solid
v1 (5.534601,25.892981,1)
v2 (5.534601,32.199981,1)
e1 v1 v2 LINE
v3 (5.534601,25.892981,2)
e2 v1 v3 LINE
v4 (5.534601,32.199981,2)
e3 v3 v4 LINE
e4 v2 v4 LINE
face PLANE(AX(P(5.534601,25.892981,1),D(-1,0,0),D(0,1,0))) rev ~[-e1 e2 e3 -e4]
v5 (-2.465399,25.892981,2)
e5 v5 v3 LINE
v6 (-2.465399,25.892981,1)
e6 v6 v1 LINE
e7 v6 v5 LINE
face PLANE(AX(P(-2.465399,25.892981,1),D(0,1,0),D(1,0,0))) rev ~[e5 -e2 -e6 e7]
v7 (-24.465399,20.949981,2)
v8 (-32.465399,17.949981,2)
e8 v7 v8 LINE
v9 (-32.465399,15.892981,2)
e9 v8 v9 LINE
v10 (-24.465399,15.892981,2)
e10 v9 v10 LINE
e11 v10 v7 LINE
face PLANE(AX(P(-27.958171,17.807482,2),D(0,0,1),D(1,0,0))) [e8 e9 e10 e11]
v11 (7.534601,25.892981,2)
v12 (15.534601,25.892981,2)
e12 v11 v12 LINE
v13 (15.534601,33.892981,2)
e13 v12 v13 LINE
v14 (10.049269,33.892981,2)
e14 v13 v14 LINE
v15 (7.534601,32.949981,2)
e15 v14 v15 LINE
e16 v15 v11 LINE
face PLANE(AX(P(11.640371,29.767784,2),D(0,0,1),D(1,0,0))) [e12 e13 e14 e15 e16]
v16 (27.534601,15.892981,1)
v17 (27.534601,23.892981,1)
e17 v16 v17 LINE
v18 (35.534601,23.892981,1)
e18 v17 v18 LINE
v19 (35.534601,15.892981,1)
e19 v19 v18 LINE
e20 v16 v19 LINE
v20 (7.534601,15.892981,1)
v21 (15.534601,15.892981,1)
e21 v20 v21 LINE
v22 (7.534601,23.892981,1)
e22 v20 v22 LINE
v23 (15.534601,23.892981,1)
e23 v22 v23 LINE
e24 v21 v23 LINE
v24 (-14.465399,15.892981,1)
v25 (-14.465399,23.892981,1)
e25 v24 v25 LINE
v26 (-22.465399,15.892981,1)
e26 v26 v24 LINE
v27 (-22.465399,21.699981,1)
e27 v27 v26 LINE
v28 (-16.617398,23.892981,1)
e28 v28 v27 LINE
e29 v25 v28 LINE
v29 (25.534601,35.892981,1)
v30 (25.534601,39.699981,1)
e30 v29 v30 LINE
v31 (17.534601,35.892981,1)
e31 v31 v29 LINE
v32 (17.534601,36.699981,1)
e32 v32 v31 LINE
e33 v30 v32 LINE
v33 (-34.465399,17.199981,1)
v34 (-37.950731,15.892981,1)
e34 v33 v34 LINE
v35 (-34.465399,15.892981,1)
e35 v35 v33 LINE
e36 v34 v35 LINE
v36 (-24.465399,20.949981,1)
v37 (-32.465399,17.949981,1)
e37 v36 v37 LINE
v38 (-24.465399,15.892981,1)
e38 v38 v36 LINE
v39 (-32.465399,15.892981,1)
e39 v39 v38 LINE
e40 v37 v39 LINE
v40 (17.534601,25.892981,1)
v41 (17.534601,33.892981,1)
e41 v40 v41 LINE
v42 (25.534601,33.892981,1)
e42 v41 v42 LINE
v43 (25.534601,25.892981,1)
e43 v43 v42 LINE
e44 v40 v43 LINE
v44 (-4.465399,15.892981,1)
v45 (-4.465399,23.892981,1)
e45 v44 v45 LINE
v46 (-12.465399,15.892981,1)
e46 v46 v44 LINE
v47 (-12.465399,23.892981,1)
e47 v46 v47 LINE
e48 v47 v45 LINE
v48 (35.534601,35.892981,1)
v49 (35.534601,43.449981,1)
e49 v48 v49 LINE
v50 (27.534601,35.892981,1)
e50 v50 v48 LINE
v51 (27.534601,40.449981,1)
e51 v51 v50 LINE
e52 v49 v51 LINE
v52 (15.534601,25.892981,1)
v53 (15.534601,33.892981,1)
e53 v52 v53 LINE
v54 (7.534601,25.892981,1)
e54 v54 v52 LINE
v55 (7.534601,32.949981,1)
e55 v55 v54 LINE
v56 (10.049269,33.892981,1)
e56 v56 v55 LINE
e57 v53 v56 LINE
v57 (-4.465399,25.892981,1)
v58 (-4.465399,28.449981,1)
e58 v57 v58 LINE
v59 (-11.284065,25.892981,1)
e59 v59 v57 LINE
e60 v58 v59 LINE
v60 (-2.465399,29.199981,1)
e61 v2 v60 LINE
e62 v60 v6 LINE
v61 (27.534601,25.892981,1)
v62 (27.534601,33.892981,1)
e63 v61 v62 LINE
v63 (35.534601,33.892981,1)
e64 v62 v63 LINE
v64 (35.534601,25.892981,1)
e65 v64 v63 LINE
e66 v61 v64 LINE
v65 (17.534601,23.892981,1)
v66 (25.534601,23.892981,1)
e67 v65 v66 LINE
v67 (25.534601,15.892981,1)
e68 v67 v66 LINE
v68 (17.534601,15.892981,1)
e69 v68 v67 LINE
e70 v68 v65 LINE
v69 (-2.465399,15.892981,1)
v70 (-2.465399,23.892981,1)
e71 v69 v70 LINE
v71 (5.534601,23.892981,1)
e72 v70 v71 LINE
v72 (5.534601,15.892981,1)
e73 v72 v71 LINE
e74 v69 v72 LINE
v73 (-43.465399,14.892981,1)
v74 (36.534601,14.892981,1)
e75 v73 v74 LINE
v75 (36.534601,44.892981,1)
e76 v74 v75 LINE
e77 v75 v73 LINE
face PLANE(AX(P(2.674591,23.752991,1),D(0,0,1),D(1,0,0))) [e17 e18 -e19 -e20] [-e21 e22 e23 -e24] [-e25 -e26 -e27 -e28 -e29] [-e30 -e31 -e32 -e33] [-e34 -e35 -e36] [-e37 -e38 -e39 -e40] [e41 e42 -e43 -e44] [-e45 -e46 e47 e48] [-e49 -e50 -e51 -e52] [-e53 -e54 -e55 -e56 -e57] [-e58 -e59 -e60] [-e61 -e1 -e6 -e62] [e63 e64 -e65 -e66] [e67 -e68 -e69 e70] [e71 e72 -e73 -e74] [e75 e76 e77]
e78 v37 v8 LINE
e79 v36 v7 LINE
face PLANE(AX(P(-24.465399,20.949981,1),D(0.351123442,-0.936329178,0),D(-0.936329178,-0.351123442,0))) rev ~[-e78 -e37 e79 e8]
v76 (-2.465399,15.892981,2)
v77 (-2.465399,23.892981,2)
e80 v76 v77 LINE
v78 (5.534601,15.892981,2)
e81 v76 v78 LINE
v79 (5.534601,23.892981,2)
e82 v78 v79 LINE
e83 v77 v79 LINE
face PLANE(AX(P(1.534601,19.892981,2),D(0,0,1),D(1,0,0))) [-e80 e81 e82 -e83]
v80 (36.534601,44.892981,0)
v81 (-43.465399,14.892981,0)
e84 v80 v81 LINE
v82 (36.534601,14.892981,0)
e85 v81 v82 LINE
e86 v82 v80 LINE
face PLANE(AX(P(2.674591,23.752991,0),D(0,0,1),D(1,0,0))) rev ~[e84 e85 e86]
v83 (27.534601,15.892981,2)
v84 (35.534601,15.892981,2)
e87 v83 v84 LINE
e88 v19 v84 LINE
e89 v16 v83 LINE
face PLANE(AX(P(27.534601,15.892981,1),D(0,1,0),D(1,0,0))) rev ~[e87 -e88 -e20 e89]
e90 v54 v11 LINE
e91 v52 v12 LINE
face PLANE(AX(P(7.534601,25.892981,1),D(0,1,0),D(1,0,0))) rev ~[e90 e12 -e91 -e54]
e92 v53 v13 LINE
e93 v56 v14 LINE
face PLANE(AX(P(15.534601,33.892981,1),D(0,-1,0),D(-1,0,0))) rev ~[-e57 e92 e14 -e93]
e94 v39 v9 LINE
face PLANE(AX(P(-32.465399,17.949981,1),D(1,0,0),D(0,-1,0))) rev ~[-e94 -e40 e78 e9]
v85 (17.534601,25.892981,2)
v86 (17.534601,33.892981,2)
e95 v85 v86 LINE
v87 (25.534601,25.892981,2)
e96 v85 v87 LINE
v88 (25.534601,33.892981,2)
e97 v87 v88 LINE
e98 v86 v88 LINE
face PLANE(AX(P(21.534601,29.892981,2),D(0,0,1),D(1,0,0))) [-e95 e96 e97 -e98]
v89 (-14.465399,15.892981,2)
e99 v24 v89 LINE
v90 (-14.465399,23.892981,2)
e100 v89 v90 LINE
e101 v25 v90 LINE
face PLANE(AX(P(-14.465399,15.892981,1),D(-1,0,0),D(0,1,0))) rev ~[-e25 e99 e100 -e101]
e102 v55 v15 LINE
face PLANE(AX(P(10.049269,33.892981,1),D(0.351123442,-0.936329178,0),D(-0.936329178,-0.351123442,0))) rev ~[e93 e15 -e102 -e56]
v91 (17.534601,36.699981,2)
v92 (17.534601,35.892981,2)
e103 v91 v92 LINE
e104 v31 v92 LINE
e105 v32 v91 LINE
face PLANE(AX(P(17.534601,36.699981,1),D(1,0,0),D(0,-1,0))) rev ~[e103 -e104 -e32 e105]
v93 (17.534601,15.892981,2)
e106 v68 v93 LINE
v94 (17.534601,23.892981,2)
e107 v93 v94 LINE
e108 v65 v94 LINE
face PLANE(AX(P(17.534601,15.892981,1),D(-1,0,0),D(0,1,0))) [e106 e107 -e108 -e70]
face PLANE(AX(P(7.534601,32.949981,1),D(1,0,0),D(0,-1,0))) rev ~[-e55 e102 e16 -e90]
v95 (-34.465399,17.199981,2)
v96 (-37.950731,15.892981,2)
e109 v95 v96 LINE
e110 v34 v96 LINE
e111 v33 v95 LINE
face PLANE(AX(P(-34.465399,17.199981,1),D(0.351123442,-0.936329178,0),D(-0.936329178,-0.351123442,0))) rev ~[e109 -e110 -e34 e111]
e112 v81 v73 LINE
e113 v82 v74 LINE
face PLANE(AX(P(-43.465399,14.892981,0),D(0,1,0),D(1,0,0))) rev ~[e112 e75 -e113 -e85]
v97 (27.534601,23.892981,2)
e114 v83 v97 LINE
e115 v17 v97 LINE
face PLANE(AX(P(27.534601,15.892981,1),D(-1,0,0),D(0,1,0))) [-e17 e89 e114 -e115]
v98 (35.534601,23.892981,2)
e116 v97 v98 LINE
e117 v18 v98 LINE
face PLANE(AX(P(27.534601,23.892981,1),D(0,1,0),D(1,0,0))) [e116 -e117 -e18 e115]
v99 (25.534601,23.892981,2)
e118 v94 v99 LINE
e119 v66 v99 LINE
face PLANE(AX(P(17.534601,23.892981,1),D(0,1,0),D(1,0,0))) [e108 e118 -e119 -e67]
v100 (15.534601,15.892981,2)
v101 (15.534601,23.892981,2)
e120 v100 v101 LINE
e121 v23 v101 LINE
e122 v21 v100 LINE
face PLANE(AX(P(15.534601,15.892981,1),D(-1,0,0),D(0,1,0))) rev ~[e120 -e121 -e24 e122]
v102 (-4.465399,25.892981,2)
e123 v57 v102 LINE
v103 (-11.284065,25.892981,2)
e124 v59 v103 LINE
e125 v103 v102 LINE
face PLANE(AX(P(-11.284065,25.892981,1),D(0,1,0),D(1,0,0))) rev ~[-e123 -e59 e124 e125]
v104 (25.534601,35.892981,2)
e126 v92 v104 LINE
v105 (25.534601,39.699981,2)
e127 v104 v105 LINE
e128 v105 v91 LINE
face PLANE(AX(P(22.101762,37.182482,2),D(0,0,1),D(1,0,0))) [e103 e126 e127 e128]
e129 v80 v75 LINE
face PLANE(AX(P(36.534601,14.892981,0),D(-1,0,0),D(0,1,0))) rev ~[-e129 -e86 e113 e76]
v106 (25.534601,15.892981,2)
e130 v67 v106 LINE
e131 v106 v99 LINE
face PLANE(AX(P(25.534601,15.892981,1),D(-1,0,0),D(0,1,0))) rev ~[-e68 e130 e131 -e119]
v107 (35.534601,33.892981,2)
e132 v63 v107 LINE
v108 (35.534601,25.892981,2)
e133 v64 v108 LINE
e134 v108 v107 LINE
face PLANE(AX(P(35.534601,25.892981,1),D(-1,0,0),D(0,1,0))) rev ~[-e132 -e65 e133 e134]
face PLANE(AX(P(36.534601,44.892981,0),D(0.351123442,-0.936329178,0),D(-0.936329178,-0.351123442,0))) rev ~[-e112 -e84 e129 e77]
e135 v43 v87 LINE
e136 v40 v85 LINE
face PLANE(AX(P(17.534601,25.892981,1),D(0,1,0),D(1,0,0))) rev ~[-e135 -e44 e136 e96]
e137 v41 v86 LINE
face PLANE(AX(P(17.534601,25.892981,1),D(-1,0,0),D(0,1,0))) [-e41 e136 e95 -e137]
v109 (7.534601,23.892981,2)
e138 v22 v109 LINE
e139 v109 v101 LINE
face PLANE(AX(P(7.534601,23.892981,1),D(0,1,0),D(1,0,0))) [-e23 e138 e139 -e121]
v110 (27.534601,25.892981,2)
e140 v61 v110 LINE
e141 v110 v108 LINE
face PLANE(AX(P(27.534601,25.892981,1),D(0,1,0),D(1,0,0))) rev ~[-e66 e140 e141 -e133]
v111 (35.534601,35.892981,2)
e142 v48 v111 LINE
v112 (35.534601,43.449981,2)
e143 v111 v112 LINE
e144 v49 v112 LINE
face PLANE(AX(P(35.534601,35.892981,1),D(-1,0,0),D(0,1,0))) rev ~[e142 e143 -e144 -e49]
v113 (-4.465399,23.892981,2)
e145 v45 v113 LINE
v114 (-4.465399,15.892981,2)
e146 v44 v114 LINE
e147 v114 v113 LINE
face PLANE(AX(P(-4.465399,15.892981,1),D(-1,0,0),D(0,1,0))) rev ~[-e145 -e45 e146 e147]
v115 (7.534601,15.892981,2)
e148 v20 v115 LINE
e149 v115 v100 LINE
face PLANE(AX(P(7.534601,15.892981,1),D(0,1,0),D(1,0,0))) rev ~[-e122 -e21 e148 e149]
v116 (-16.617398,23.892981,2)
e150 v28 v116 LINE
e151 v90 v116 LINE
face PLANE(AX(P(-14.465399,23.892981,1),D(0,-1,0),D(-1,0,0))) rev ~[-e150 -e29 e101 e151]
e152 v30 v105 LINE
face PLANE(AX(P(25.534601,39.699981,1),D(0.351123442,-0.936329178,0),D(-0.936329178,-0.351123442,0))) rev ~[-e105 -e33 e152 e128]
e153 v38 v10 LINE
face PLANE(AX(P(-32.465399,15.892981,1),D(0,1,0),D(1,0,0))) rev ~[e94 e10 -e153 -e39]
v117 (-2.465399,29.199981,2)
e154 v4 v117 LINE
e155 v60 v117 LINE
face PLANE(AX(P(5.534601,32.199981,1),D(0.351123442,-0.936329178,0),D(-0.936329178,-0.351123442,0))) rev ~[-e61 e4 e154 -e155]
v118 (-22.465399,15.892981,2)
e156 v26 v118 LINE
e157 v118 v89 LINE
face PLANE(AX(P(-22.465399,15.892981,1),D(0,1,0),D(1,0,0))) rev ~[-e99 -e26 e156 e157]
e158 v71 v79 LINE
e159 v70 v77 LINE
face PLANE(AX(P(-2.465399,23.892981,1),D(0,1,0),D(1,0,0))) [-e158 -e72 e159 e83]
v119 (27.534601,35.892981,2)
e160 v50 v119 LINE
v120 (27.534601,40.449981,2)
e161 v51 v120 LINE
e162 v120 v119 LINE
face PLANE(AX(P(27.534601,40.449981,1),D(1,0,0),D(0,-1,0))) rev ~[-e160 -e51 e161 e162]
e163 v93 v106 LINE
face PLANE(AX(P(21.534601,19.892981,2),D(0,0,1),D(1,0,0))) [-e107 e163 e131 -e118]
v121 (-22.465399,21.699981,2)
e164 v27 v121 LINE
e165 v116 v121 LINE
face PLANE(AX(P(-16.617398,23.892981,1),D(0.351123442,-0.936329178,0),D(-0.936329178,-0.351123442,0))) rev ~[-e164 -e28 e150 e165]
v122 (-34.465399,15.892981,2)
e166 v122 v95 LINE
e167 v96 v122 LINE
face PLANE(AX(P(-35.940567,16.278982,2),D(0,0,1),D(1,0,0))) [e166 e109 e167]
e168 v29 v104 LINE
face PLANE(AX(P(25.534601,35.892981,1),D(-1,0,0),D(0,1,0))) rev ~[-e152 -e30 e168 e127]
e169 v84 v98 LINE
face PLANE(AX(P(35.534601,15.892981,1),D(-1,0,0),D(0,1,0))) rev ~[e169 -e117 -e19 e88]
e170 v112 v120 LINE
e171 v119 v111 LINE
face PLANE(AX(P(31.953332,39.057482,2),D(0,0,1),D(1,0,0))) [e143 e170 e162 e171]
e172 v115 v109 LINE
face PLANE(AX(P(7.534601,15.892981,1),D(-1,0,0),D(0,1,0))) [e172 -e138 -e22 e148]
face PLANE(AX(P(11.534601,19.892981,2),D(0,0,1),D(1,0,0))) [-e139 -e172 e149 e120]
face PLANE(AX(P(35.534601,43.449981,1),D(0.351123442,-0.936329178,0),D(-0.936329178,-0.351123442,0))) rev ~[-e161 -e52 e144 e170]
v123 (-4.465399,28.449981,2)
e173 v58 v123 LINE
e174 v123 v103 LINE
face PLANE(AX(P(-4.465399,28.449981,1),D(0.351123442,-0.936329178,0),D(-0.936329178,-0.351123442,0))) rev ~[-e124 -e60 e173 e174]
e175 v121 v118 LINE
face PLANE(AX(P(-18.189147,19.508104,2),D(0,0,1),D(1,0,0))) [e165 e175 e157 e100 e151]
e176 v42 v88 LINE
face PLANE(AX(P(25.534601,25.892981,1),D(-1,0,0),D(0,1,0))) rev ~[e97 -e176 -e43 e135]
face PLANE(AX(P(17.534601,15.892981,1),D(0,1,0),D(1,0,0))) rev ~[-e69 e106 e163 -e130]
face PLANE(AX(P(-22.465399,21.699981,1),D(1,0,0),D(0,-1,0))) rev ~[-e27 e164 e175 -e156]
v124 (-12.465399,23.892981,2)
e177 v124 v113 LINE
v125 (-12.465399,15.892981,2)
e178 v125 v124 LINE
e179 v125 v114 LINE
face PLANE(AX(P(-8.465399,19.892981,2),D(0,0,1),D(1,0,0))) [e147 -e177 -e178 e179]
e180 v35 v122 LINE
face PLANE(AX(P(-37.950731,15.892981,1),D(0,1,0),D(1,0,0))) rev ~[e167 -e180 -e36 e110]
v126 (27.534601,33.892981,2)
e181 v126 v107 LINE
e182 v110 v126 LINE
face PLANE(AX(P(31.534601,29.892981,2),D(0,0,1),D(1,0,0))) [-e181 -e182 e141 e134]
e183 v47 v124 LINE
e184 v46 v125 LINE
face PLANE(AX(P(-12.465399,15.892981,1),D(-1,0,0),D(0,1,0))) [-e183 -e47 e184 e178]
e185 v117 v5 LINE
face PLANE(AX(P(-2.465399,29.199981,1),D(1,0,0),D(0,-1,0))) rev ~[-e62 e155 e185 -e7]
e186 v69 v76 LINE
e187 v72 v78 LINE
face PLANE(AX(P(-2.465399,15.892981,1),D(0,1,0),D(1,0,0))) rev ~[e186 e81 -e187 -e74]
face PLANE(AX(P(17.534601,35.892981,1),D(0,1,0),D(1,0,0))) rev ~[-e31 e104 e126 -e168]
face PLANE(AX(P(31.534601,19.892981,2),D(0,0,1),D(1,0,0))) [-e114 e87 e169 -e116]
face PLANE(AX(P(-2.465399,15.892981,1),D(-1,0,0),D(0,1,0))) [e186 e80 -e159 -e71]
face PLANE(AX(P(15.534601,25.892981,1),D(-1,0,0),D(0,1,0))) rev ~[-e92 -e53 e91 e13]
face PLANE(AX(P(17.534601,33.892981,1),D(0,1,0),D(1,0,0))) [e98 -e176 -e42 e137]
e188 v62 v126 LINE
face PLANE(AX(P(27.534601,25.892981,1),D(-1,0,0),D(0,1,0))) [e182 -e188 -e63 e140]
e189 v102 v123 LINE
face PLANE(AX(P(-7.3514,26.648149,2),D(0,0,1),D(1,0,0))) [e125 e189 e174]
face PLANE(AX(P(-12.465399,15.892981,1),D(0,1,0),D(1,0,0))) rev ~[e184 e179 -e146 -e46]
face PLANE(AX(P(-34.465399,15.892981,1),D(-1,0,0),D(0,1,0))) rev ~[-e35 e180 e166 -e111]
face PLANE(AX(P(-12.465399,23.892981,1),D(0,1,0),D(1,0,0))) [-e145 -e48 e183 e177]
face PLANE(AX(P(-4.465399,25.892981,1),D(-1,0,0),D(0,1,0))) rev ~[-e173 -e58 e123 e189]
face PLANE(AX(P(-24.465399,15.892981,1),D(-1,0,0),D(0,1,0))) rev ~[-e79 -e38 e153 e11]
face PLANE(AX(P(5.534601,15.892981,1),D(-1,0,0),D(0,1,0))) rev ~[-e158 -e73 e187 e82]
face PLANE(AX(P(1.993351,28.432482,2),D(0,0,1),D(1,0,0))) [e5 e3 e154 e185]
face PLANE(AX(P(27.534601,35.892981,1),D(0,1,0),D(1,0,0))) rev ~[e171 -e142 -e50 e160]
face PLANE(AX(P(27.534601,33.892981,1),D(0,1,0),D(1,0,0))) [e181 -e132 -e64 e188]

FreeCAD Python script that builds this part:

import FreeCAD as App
import Part
import Sketcher
Q = App.Units.Quantity


def add_polygon(sketch, points):
    """Adds a closed chain of lines whose ends are joined by coincident constraints."""
    first, n = sketch.GeometryCount, len(points)
    for a, b in zip(points, points[1:] + points[:1]):
        sketch.addGeometry(Part.LineSegment(App.Vector(*a, 0), App.Vector(*b, 0)), False)
    for i in range(n):
        sketch.addConstraint(Sketcher.Constraint("Coincident", first + i, 2, first + (i + 1) % n, 1))

doc = App.newDocument("Part")
body = doc.addObject("PartDesign::Body", "Body")

sketch1 = doc.addObject("Sketcher::SketchObject", "Sketch")
body.addObject(sketch1)
sketch1.AttachmentSupport = (doc.XY_Plane, [""])
sketch1.MapMode = "FlatFace"
add_polygon(sketch1, [(37, 45), (-43, 15), (37, 15)])
sketch1.addConstraint([
    Sketcher.Constraint("Horizontal", 1),
    Sketcher.Constraint("Vertical", 2),
    Sketcher.Constraint("DistanceX", 1, 1, 1, 2, Q("80 mm")),
    Sketcher.Constraint("DistanceY", 2, 1, 2, 2, Q("30 mm")),
    Sketcher.Constraint("DistanceX", 0, 2, -1, 1, Q("43.465399 mm")),
    Sketcher.Constraint("DistanceY", -1, 1, 0, 2, Q("14.892981 mm")),
])
pad1 = doc.addObject("PartDesign::Pad", "Pad")
body.addObject(pad1)
pad1.Profile = sketch1
pad1.Length = 1

sketch2 = doc.addObject("Sketcher::SketchObject", "Sketch001")
body.addObject(sketch2)
sketch2.AttachmentSupport = (doc.XY_Plane, [""])
sketch2.MapMode = "FlatFace"
sketch2.AttachmentOffset = App.Placement(App.Vector(0, 0, 1), App.Rotation())
add_polygon(sketch2, [(-34.5, 15.9), (-34.5, 17.2), (-38, 15.9)])
add_polygon(sketch2, [(-24.5, 15.9), (-24.5, 20.9), (-32.5, 17.9), (-32.5, 15.9)])
add_polygon(sketch2, [(-14.5, 15.9), (-14.5, 23.9), (-16.6, 23.9), (-22.5, 21.7), (-22.5, 15.9)])
add_polygon(sketch2, [(-12.5, 23.9), (-12.5, 15.9), (-4.5, 15.9), (-4.5, 23.9)])
add_polygon(sketch2, [(-4.5, 25.9), (-4.5, 28.4), (-11.3, 25.9)])
add_polygon(sketch2, [(5.5, 25.9), (5.5, 32.2), (-2.5, 29.2), (-2.5, 25.9)])
add_polygon(sketch2, [(-2.5, 23.9), (-2.5, 15.9), (5.5, 15.9), (5.5, 23.9)])
add_polygon(sketch2, [(15.5, 25.9), (15.5, 33.9), (10, 33.9), (7.5, 32.9), (7.5, 25.9)])
add_polygon(sketch2, [(7.5, 23.9), (7.5, 15.9), (15.5, 15.9), (15.5, 23.9)])
add_polygon(sketch2, [(17.5, 33.9), (17.5, 25.9), (25.5, 25.9), (25.5, 33.9)])
add_polygon(sketch2, [(25.5, 35.9), (25.5, 39.7), (17.5, 36.7), (17.5, 35.9)])
add_polygon(sketch2, [(17.5, 23.9), (17.5, 15.9), (25.5, 15.9), (25.5, 23.9)])
add_polygon(sketch2, [(35.5, 35.9), (35.5, 43.4), (27.5, 40.4), (27.5, 35.9)])
add_polygon(sketch2, [(27.5, 33.9), (27.5, 25.9), (35.5, 25.9), (35.5, 33.9)])
add_polygon(sketch2, [(27.5, 23.9), (27.5, 15.9), (35.5, 15.9), (35.5, 23.9)])
sketch2.addConstraint([
    Sketcher.Constraint("Vertical", 0),
    Sketcher.Constraint("Horizontal", 2),
    Sketcher.Constraint("Vertical", 3),
    Sketcher.Constraint("Vertical", 5),
    Sketcher.Constraint("Horizontal", 6),
    Sketcher.Constraint("Vertical", 7),
    Sketcher.Constraint("Horizontal", 8),
    Sketcher.Constraint("Vertical", 10),
    Sketcher.Constraint("Horizontal", 11),
    Sketcher.Constraint("Vertical", 12),
    Sketcher.Constraint("Horizontal", 13),
    Sketcher.Constraint("Vertical", 14),
    Sketcher.Constraint("Horizontal", 15),
    Sketcher.Constraint("Vertical", 16),
    Sketcher.Constraint("Horizontal", 18),
    Sketcher.Constraint("Vertical", 19),
    Sketcher.Constraint("Vertical", 21),
    Sketcher.Constraint("Horizontal", 22),
    Sketcher.Constraint("Vertical", 23),
    Sketcher.Constraint("Horizontal", 24),
    Sketcher.Constraint("Vertical", 25),
    Sketcher.Constraint("Horizontal", 26),
    Sketcher.Constraint("Vertical", 27),
    Sketcher.Constraint("Horizontal", 28),
    Sketcher.Constraint("Vertical", 30),
    Sketcher.Constraint("Horizontal", 31),
    Sketcher.Constraint("Vertical", 32),
    Sketcher.Constraint("Horizontal", 33),
    Sketcher.Constraint("Vertical", 34),
    Sketcher.Constraint("Horizontal", 35),
    Sketcher.Constraint("Vertical", 36),
    Sketcher.Constraint("Horizontal", 37),
    Sketcher.Constraint("Vertical", 38),
    Sketcher.Constraint("Horizontal", 39),
    Sketcher.Constraint("Vertical", 40),
    Sketcher.Constraint("Vertical", 42),
    Sketcher.Constraint("Horizontal", 43),
    Sketcher.Constraint("Vertical", 44),
    Sketcher.Constraint("Horizontal", 45),
    Sketcher.Constraint("Vertical", 46),
    Sketcher.Constraint("Horizontal", 47),
    Sketcher.Constraint("Vertical", 48),
    Sketcher.Constraint("Vertical", 50),
    Sketcher.Constraint("Horizontal", 51),
    Sketcher.Constraint("Vertical", 52),
    Sketcher.Constraint("Horizontal", 53),
    Sketcher.Constraint("Vertical", 54),
    Sketcher.Constraint("Horizontal", 55),
    Sketcher.Constraint("Vertical", 56),
    Sketcher.Constraint("Horizontal", 57),
    Sketcher.Constraint("Vertical", 58),
    Sketcher.Constraint("Horizontal", 59),
    Sketcher.Constraint("Parallel", 1, 4),
    Sketcher.Constraint("Parallel", 4, 9),
    Sketcher.Constraint("Parallel", 9, 17),
    Sketcher.Constraint("Parallel", 17, 20),
    Sketcher.Constraint("Parallel", 20, 29),
    Sketcher.Constraint("Parallel", 29, 41),
    Sketcher.Constraint("Parallel", 41, 49),
    Sketcher.Constraint("Horizontal", 2, 2, 5, 2),
    Sketcher.Constraint("Horizontal", 6, 2, 10, 2),
    Sketcher.Constraint("Horizontal", 11, 2, 12, 2),
    Sketcher.Constraint("Horizontal", 8, 2, 14, 2),
    Sketcher.Constraint("Horizontal", 18, 2, 21, 2),
    Sketcher.Constraint("Horizontal", 13, 2, 23, 2),
    Sketcher.Constraint("Horizontal", 15, 2, 25, 2),
    Sketcher.Constraint("Horizontal", 22, 2, 30, 2),
    Sketcher.Constraint("Horizontal", 24, 2, 32, 2),
    Sketcher.Constraint("Horizontal", 26, 2, 34, 2),
    Sketcher.Constraint("Horizontal", 31, 2, 36, 2),
    Sketcher.Constraint("Horizontal", 28, 2, 38, 2),
    Sketcher.Constraint("Horizontal", 33, 2, 44, 2),
    Sketcher.Constraint("Horizontal", 35, 2, 46, 2),
    Sketcher.Constraint("Horizontal", 43, 2, 50, 2),
    Sketcher.Constraint("Horizontal", 37, 2, 52, 2),
    Sketcher.Constraint("Horizontal", 39, 2, 54, 2),
    Sketcher.Constraint("Horizontal", 45, 2, 56, 2),
    Sketcher.Constraint("Horizontal", 47, 2, 58, 2),
    Sketcher.Constraint("Vertical", 14, 2, 16, 2),
    Sketcher.Constraint("Vertical", 21, 2, 23, 2),
    Sketcher.Constraint("Vertical", 22, 2, 24, 2),
    Sketcher.Constraint("Vertical", 30, 2, 32, 2),
    Sketcher.Constraint("Vertical", 31, 2, 33, 2),
    Sketcher.Constraint("Vertical", 38, 2, 40, 2),
    Sketcher.Constraint("Vertical", 39, 2, 41, 2),
    Sketcher.Constraint("Vertical", 42, 2, 44, 2),
    Sketcher.Constraint("Vertical", 43, 2, 45, 2),
    Sketcher.Constraint("Vertical", 50, 2, 52, 2),
    Sketcher.Constraint("Vertical", 51, 2, 53, 2),
    Sketcher.Constraint("Vertical", 55, 2, 56, 2),
    Sketcher.Constraint("Vertical", 54, 2, 57, 2),
    Sketcher.Constraint("Equal", 6, 11),
    Sketcher.Constraint("Equal", 11, 13),
    Sketcher.Constraint("Equal", 15, 22),
    Sketcher.Constraint("Equal", 26, 31),
    Sketcher.Constraint("Equal", 35, 37),
    Sketcher.Constraint("Equal", 47, 51),
    Sketcher.Constraint("Equal", 59, 7),
    Sketcher.Constraint("Equal", 25, 27),
    Sketcher.Constraint("DistanceX", 6, 1, 6, 2, Q("8 mm")),
    Sketcher.Constraint("DistanceX", 0, 2, 3, 2, Q("10 mm")),
    Sketcher.Constraint("DistanceY", 4, 2, 3, 2, Q("3 mm")),
    Sketcher.Constraint("DistanceX", 3, 2, 7, 2, Q("10 mm")),
    Sketcher.Constraint("DistanceX", 11, 2, 12, 2, Q("2 mm")),
    Sketcher.Constraint("DistanceY", 15, 2, 17, 2, Q("2 mm")),
    Sketcher.Constraint("DistanceX", 16, 2, 19, 2, Q("10 mm")),
    Sketcher.Constraint("DistanceX", 19, 2, 27, 2, Q("10 mm")),
    Sketcher.Constraint("DistanceX", 31, 2, 36, 2, Q("2 mm")),
    Sketcher.Constraint("DistanceY", 39, 2, 42, 2, Q("2 mm")),
    Sketcher.Constraint("DistanceX", 40, 2, 48, 2, Q("10 mm")),
    Sketcher.Constraint("DistanceX", 8, 2, 8, 1, Q("2.151999 mm")),
    Sketcher.Constraint("DistanceY", 0, 1, 0, 2, Q("1.307 mm")),
    Sketcher.Constraint("DistanceY", 3, 1, 3, 2, Q("5.057 mm")),
    Sketcher.Constraint("DistanceY", 16, 1, 16, 2, Q("2.557 mm")),
    Sketcher.Constraint("DistanceY", 19, 1, 19, 2, Q("6.307 mm")),
    Sketcher.Constraint("DistanceY", 30, 2, 30, 1, Q("7.057 mm")),
    Sketcher.Constraint("DistanceY", 40, 1, 40, 2, Q("3.807 mm")),
    Sketcher.Constraint("DistanceY", 48, 1, 48, 2, Q("7.557 mm")),
    Sketcher.Constraint("DistanceX", 0, 2, -1, 1, Q("34.465399 mm")),
    Sketcher.Constraint("DistanceY", -1, 1, 0, 2, Q("17.199981 mm")),
])
pad2 = doc.addObject("PartDesign::Pad", "Pad001")
body.addObject(pad2)
pad2.Profile = sketch2
pad2.Length = 1

doc.recompute()
